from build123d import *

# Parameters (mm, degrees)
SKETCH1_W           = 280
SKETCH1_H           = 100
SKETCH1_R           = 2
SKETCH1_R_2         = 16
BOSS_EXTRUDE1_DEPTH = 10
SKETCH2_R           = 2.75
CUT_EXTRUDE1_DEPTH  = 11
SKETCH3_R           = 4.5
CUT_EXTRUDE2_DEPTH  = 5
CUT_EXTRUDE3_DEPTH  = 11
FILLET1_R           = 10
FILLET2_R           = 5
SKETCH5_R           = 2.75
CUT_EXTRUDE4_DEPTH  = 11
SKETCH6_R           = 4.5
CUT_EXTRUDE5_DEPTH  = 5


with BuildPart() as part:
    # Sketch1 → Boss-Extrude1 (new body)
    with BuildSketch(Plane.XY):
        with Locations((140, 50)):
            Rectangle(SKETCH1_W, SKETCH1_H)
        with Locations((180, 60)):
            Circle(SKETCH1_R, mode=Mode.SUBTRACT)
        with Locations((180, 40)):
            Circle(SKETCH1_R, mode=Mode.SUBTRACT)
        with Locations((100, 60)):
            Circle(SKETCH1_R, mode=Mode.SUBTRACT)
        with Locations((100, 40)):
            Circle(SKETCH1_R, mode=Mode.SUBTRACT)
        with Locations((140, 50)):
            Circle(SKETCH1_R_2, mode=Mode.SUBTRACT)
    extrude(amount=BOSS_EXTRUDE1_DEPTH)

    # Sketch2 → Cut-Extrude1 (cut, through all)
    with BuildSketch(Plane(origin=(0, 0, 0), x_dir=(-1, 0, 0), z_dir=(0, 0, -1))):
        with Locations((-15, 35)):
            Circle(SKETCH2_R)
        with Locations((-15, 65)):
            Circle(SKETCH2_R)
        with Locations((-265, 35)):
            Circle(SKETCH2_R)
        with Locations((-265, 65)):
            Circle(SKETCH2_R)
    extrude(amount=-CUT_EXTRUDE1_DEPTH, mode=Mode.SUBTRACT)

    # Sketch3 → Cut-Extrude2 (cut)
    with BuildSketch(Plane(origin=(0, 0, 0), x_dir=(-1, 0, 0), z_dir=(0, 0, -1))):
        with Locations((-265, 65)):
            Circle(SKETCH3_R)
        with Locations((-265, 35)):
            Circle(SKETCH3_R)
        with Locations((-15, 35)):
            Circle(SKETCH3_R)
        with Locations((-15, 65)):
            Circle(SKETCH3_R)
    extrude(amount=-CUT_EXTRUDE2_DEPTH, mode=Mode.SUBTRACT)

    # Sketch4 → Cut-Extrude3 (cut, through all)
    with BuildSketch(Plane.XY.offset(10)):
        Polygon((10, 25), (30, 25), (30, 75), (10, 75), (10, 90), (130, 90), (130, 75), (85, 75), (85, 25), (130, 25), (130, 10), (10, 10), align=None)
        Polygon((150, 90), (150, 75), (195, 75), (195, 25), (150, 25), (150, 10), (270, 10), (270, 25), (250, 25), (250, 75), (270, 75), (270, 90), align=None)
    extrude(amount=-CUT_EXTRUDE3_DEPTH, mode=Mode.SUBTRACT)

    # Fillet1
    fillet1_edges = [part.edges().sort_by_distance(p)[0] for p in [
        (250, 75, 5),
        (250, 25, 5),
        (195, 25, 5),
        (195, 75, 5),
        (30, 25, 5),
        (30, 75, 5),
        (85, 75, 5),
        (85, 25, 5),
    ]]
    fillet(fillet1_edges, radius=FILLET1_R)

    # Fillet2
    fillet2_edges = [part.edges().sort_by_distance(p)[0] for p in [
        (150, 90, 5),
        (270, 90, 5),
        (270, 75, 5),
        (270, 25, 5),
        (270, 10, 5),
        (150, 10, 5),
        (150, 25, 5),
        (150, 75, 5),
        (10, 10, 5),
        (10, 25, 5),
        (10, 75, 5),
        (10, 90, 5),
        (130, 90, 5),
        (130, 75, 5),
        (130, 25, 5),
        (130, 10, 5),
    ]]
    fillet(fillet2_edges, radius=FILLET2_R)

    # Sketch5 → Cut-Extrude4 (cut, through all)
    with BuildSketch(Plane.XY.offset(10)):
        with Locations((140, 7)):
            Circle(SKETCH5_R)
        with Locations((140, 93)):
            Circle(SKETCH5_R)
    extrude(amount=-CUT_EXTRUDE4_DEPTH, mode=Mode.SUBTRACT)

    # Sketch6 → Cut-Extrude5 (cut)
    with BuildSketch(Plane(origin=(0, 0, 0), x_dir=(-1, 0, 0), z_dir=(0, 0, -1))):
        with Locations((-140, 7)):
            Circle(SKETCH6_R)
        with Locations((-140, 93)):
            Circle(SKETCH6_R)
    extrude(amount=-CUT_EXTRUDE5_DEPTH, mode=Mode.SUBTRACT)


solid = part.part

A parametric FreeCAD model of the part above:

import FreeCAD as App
import Part
import Sketcher
from FreeCAD import Vector
Q = App.Units.Quantity


def edges_at(feature, points):
    """Names of the edges that pass closest to the given points."""
    edges = feature.Shape.Edges
    near = lambda p: min(range(len(edges)), key=lambda i: edges[i].distToShape(Part.Vertex(*p))[0])
    return sorted({f"Edge{near(p) + 1}" for p in points})


def add_polygon(sketch, points):
    """Adds a closed chain of lines whose ends are joined by coincident constraints."""
    first, n = sketch.GeometryCount, len(points)
    for a, b in zip(points, points[1:] + points[:1]):
        sketch.addGeometry(Part.LineSegment(App.Vector(*a, 0), App.Vector(*b, 0)), False)
    for i in range(n):
        sketch.addConstraint(Sketcher.Constraint("Coincident", first + i, 2, first + (i + 1) % n, 1))

doc = App.newDocument("Part")
params = doc.addObject("Spreadsheet::Sheet", "Params")
for row, (alias, value) in enumerate([
    ("sketch1_diameter", "4 mm"),
    ("sketch1_diameter2", "32 mm"),
    ("sketch1_width", "280 mm"),
    ("sketch1_height", "100 mm"),
    ("pad1_length", "10 mm"),
    ("sketch2_diameter", "5.5 mm"),
    ("sketch3_diameter", "9 mm"),
    ("pocket2_length", "5 mm"),
    ("sketch4_width", "20 mm"),
    ("sketch4_width2", "120 mm"),
    ("sketch4_width3", "45 mm"),
    ("sketch4_height", "15 mm"),
    ("sketch4_height2", "50 mm"),
    ("fillet_radius", "10 mm"),
    ("fillet2_radius", "5 mm"),
    ("sketch5_diameter", "5.5 mm"),
    ("sketch6_diameter", "9 mm"),
    ("pocket5_length", "5 mm"),
], start=1):
    params.set(f"A{row}", alias)
    params.set(f"B{row}", "=" + value)
    params.setAlias(f"B{row}", alias)

body = doc.addObject("PartDesign::Body", "Body")

# Sketch on XY plane
sketch1 = doc.addObject("Sketcher::SketchObject", "Sketch")
body.addObject(sketch1)
sketch1.AttachmentSupport = (doc.XY_Plane, [""])
sketch1.MapMode = "FlatFace"
add_polygon(sketch1, [(0, 100), (0, 0), (280, 0), (280, 100)])  # lines 0-3
sketch1.addGeometry(Part.Circle(Vector(100, 40, 0), Vector(0, 0, 1), 2), False)  # 4
sketch1.addGeometry(Part.Circle(Vector(180, 40, 0), Vector(0, 0, 1), 2), False)  # 5
sketch1.addGeometry(Part.Circle(Vector(100, 60, 0), Vector(0, 0, 1), 2), False)  # 6
sketch1.addGeometry(Part.Circle(Vector(140, 50, 0), Vector(0, 0, 1), 16), False)  # 7
sketch1.addGeometry(Part.Circle(Vector(180, 60, 0), Vector(0, 0, 1), 2), False)  # 8
sketch1.addConstraint([
    Sketcher.Constraint("Vertical", 0),
    Sketcher.Constraint("Horizontal", 1),
    Sketcher.Constraint("Vertical", 2),
    Sketcher.Constraint("Horizontal", 3),
    Sketcher.Constraint("Coincident", 0, 2, -1, 1),
    Sketcher.Constraint("Equal", 4, 5),
    Sketcher.Constraint("Equal", 5, 6),
    Sketcher.Constraint("Equal", 6, 8),
    Sketcher.Constraint("Horizontal", 4, 3, 5, 3),
    Sketcher.Constraint("Horizontal", 6, 3, 8, 3),
    Sketcher.Constraint("Vertical", 4, 3, 6, 3),
    Sketcher.Constraint("Vertical", 5, 3, 8, 3),
    Sketcher.Constraint("Diameter", 4, Q("4 mm")),
    Sketcher.Constraint("Diameter", 7, Q("32 mm")),
    Sketcher.Constraint("DistanceX", 1, 1, 1, 2, Q("280 mm")),
    Sketcher.Constraint("DistanceY", 0, 2, 0, 1, Q("100 mm")),
    Sketcher.Constraint("DistanceX", -1, 1, 4, 3, Q("100 mm")),
    Sketcher.Constraint("DistanceY", -1, 1, 4, 3, Q("40 mm")),
    Sketcher.Constraint("DistanceX", -1, 1, 5, 3, Q("180 mm")),
    Sketcher.Constraint("DistanceY", -1, 1, 6, 3, Q("60 mm")),
    Sketcher.Constraint("DistanceX", -1, 1, 7, 3, Q("140 mm")),
    Sketcher.Constraint("DistanceY", -1, 1, 7, 3, Q("50 mm")),
])
sketch1.setExpression("Constraints[16]", "Params.sketch1_diameter")
sketch1.setExpression("Constraints[17]", "Params.sketch1_diameter2")
sketch1.setExpression("Constraints[18]", "Params.sketch1_width")
sketch1.setExpression("Constraints[19]", "Params.sketch1_height")
pad1 = doc.addObject("PartDesign::Pad", "Pad")
body.addObject(pad1)
pad1.Profile = sketch1
pad1.setExpression("Length", "Params.pad1_length")

# Sketch on XY plane
sketch2 = doc.addObject("Sketcher::SketchObject", "Sketch001")
body.addObject(sketch2)
sketch2.AttachmentSupport = (doc.XY_Plane, [""])
sketch2.MapMode = "FlatFace"
sketch2.addGeometry([
    Part.Circle(Vector(15, 35, 0), Vector(0, 0, 1), 2.8),
    Part.Circle(Vector(15, 65, 0), Vector(0, 0, 1), 2.8),
    Part.Circle(Vector(265, 35, 0), Vector(0, 0, 1), 2.8),
    Part.Circle(Vector(265, 65, 0), Vector(0, 0, 1), 2.8),
], False)
sketch2.addConstraint([
    Sketcher.Constraint("Equal", 0, 1),
    Sketcher.Constraint("Equal", 1, 2),
    Sketcher.Constraint("Equal", 2, 3),
    Sketcher.Constraint("Horizontal", 0, 3, 2, 3),
    Sketcher.Constraint("Horizontal", 1, 3, 3, 3),
    Sketcher.Constraint("Vertical", 0, 3, 1, 3),
    Sketcher.Constraint("Vertical", 2, 3, 3, 3),
    Sketcher.Constraint("Diameter", 0, Q("5.5 mm")),
    Sketcher.Constraint("DistanceX", -1, 1, 0, 3, Q("15 mm")),
    Sketcher.Constraint("DistanceY", -1, 1, 0, 3, Q("35 mm")),
    Sketcher.Constraint("DistanceY", -1, 1, 1, 3, Q("65 mm")),
    Sketcher.Constraint("DistanceX", -1, 1, 2, 3, Q("265 mm")),
])
sketch2.setExpression("Constraints[7]", "Params.sketch2_diameter")
pocket1 = doc.addObject("PartDesign::Pocket", "Pocket")
body.addObject(pocket1)
pocket1.Profile = sketch2
pocket1.Type = "ThroughAll"
pocket1.Reversed = True

# Sketch on XY plane
sketch3 = doc.addObject("Sketcher::SketchObject", "Sketch002")
body.addObject(sketch3)
sketch3.AttachmentSupport = (doc.XY_Plane, [""])
sketch3.MapMode = "FlatFace"
sketch3.addGeometry([
    Part.Circle(Vector(265, 65, 0), Vector(0, 0, 1), 4.5),
    Part.Circle(Vector(265, 35, 0), Vector(0, 0, 1), 4.5),
    Part.Circle(Vector(15, 35, 0), Vector(0, 0, 1), 4.5),
    Part.Circle(Vector(15, 65, 0), Vector(0, 0, 1), 4.5),
], False)
sketch3.addConstraint([
    Sketcher.Constraint("Equal", 0, 1),
    Sketcher.Constraint("Equal", 1, 2),
    Sketcher.Constraint("Equal", 2, 3),
    Sketcher.Constraint("Horizontal", 1, 3, 2, 3),
    Sketcher.Constraint("Horizontal", 0, 3, 3, 3),
    Sketcher.Constraint("Vertical", 0, 3, 1, 3),
    Sketcher.Constraint("Vertical", 2, 3, 3, 3),
    Sketcher.Constraint("Diameter", 0, Q("9 mm")),
    Sketcher.Constraint("DistanceX", -1, 1, 0, 3, Q("265 mm")),
    Sketcher.Constraint("DistanceY", -1, 1, 0, 3, Q("65 mm")),
    Sketcher.Constraint("DistanceY", -1, 1, 1, 3, Q("35 mm")),
    Sketcher.Constraint("DistanceX", -1, 1, 2, 3, Q("15 mm")),
])
sketch3.setExpression("Constraints[7]", "Params.sketch3_diameter")
pocket2 = doc.addObject("PartDesign::Pocket", "Pocket001")
body.addObject(pocket2)
pocket2.Profile = sketch3
pocket2.setExpression("Length", "Params.pocket2_length")
pocket2.Reversed = True

# Sketch on XY plane
sketch4 = doc.addObject("Sketcher::SketchObject", "Sketch003")
body.addObject(sketch4)
sketch4.AttachmentSupport = (doc.XY_Plane, [""])
sketch4.MapMode = "FlatFace"
sketch4.AttachmentOffset = App.Placement(Vector(0, 0, 10), App.Rotation())
add_polygon(sketch4, [(30, 25), (10, 25), (10, 10), (130, 10), (130, 25), (85, 25), (85, 75), (130, 75), (130, 90), (10, 90), (10, 75), (30, 75)])  # lines 0-11
add_polygon(sketch4, [(150, 90), (150, 75), (195, 75), (195, 25), (150, 25), (150, 10), (270, 10), (270, 25), (250, 25), (250, 75), (270, 75), (270, 90)])  # lines 12-23
sketch4.addConstraint([
    Sketcher.Constraint("Horizontal", 0),
    Sketcher.Constraint("Vertical", 1),
    Sketcher.Constraint("Horizontal", 2),
    Sketcher.Constraint("Vertical", 3),
    Sketcher.Constraint("Horizontal", 4),
    Sketcher.Constraint("Vertical", 5),
    Sketcher.Constraint("Horizontal", 6),
    Sketcher.Constraint("Vertical", 7),
    Sketcher.Constraint("Horizontal", 8),
    Sketcher.Constraint("Vertical", 9),
    Sketcher.Constraint("Horizontal", 10),
    Sketcher.Constraint("Vertical", 11),
    Sketcher.Constraint("Vertical", 12),
    Sketcher.Constraint("Horizontal", 13),
    Sketcher.Constraint("Vertical", 14),
    Sketcher.Constraint("Horizontal", 15),
    Sketcher.Constraint("Vertical", 16),
    Sketcher.Constraint("Horizontal", 17),
    Sketcher.Constraint("Vertical", 18),
    Sketcher.Constraint("Horizontal", 19),
    Sketcher.Constraint("Vertical", 20),
    Sketcher.Constraint("Horizontal", 21),
    Sketcher.Constraint("Vertical", 22),
    Sketcher.Constraint("Horizontal", 23),
    Sketcher.Constraint("Horizontal", 0, 2, 3, 2),
    Sketcher.Constraint("Horizontal", 6, 2, 9, 2),
    Sketcher.Constraint("Horizontal", 10, 2, 12, 2),
    Sketcher.Constraint("Horizontal", 11, 2, 14, 2),
    Sketcher.Constraint("Horizontal", 2, 2, 16, 2),
    Sketcher.Constraint("Horizontal", 15, 2, 18, 2),
    Sketcher.Constraint("Horizontal", 13, 2, 20, 2),
    Sketcher.Constraint("Horizontal", 8, 2, 22, 2),
    Sketcher.Constraint("Vertical", 3, 2, 6, 2),
    Sketcher.Constraint("Vertical", 1, 2, 8, 2),
    Sketcher.Constraint("Vertical", 12, 2, 15, 2),
    Sketcher.Constraint("Vertical", 18, 2, 21, 2),
    Sketcher.Constraint("Equal", 6, 13),
    Sketcher.Constraint("Equal", 8, 17),
    Sketcher.Constraint("Equal", 10, 19),
    Sketcher.Constraint("Equal", 3, 7),
    Sketcher.Constraint("DistanceX", 0, 2, 0, 1, Q("20 mm")),
    Sketcher.Constraint("DistanceX", 2, 1, 2, 2, Q("120 mm")),
    Sketcher.Constraint("DistanceX", 4, 2, 4, 1, Q("45 mm")),
    Sketcher.Constraint("DistanceY", 1, 2, 1, 1, Q("15 mm")),
    Sketcher.Constraint("DistanceY", 5, 1, 5, 2, Q("50 mm")),
    Sketcher.Constraint("DistanceX", -1, 1, 0, 2, Q("10 mm")),
    Sketcher.Constraint("DistanceY", -1, 1, 0, 2, Q("25 mm")),
    Sketcher.Constraint("DistanceX", -1, 1, 12, 2, Q("150 mm")),
])
sketch4.setExpression("Constraints[64]", "Params.sketch4_width")
sketch4.setExpression("Constraints[65]", "Params.sketch4_width2")
sketch4.setExpression("Constraints[66]", "Params.sketch4_width3")
sketch4.setExpression("Constraints[67]", "Params.sketch4_height")
sketch4.setExpression("Constraints[68]", "Params.sketch4_height2")
pocket3 = doc.addObject("PartDesign::Pocket", "Pocket002")
body.addObject(pocket3)
pocket3.Profile = sketch4
pocket3.Type = "ThroughAll"
doc.recompute()

fillet = doc.addObject("PartDesign::Fillet", "Fillet")
body.addObject(fillet)
fillet.Base = (pocket3, edges_at(pocket3, [
    (250, 75, 5),
    (250, 25, 5),
    (195, 25, 5),
    (195, 75, 5),
    (30, 25, 5),
    (30, 75, 5),
    (85, 75, 5),
    (85, 25, 5),
]))
fillet.setExpression("Radius", "Params.fillet_radius")
doc.recompute()

fillet2 = doc.addObject("PartDesign::Fillet", "Fillet001")
body.addObject(fillet2)
fillet2.Base = (fillet, edges_at(fillet, [
    (150, 90, 5),
    (270, 90, 5),
    (270, 75, 5),
    (270, 25, 5),
    (270, 10, 5),
    (150, 10, 5),
    (150, 25, 5),
    (150, 75, 5),
    (10, 10, 5),
    (10, 25, 5),
    (10, 75, 5),
    (10, 90, 5),
    (130, 90, 5),
    (130, 75, 5),
    (130, 25, 5),
    (130, 10, 5),
]))
fillet2.setExpression("Radius", "Params.fillet2_radius")

# Sketch on XY plane
sketch5 = doc.addObject("Sketcher::SketchObject", "Sketch004")
body.addObject(sketch5)
sketch5.AttachmentSupport = (doc.XY_Plane, [""])
sketch5.MapMode = "FlatFace"
sketch5.AttachmentOffset = App.Placement(Vector(0, 0, 10), App.Rotation())
sketch5.addGeometry([
    Part.Circle(Vector(140, 7, 0), Vector(0, 0, 1), 2.8),
    Part.Circle(Vector(140, 93, 0), Vector(0, 0, 1), 2.8),
], False)
sketch5.addConstraint([
    Sketcher.Constraint("Equal", 0, 1),
    Sketcher.Constraint("Vertical", 0, 3, 1, 3),
    Sketcher.Constraint("Diameter", 0, Q("5.5 mm")),
    Sketcher.Constraint("DistanceX", -1, 1, 0, 3, Q("140 mm")),
    Sketcher.Constraint("DistanceY", -1, 1, 0, 3, Q("7 mm")),
    Sketcher.Constraint("DistanceY", -1, 1, 1, 3, Q("93 mm")),
])
sketch5.setExpression("Constraints[2]", "Params.sketch5_diameter")
pocket4 = doc.addObject("PartDesign::Pocket", "Pocket003")
body.addObject(pocket4)
pocket4.Profile = sketch5
pocket4.Type = "ThroughAll"

# Sketch on XY plane
sketch6 = doc.addObject("Sketcher::SketchObject", "Sketch005")
body.addObject(sketch6)
sketch6.AttachmentSupport = (doc.XY_Plane, [""])
sketch6.MapMode = "FlatFace"
sketch6.addGeometry([
    Part.Circle(Vector(140, 7, 0), Vector(0, 0, 1), 4.5),
    Part.Circle(Vector(140, 93, 0), Vector(0, 0, 1), 4.5),
], False)
sketch6.addConstraint([
    Sketcher.Constraint("Equal", 0, 1),
    Sketcher.Constraint("Vertical", 0, 3, 1, 3),
    Sketcher.Constraint("Diameter", 0, Q("9 mm")),
    Sketcher.Constraint("DistanceX", -1, 1, 0, 3, Q("140 mm")),
    Sketcher.Constraint("DistanceY", -1, 1, 0, 3, Q("7 mm")),
    Sketcher.Constraint("DistanceY", -1, 1, 1, 3, Q("93 mm")),
])
sketch6.setExpression("Constraints[2]", "Params.sketch6_diameter")
pocket5 = doc.addObject("PartDesign::Pocket", "Pocket004")
body.addObject(pocket5)
pocket5.Profile = sketch6
pocket5.setExpression("Length", "Params.pocket5_length")
pocket5.Reversed = True

doc.recompute()
